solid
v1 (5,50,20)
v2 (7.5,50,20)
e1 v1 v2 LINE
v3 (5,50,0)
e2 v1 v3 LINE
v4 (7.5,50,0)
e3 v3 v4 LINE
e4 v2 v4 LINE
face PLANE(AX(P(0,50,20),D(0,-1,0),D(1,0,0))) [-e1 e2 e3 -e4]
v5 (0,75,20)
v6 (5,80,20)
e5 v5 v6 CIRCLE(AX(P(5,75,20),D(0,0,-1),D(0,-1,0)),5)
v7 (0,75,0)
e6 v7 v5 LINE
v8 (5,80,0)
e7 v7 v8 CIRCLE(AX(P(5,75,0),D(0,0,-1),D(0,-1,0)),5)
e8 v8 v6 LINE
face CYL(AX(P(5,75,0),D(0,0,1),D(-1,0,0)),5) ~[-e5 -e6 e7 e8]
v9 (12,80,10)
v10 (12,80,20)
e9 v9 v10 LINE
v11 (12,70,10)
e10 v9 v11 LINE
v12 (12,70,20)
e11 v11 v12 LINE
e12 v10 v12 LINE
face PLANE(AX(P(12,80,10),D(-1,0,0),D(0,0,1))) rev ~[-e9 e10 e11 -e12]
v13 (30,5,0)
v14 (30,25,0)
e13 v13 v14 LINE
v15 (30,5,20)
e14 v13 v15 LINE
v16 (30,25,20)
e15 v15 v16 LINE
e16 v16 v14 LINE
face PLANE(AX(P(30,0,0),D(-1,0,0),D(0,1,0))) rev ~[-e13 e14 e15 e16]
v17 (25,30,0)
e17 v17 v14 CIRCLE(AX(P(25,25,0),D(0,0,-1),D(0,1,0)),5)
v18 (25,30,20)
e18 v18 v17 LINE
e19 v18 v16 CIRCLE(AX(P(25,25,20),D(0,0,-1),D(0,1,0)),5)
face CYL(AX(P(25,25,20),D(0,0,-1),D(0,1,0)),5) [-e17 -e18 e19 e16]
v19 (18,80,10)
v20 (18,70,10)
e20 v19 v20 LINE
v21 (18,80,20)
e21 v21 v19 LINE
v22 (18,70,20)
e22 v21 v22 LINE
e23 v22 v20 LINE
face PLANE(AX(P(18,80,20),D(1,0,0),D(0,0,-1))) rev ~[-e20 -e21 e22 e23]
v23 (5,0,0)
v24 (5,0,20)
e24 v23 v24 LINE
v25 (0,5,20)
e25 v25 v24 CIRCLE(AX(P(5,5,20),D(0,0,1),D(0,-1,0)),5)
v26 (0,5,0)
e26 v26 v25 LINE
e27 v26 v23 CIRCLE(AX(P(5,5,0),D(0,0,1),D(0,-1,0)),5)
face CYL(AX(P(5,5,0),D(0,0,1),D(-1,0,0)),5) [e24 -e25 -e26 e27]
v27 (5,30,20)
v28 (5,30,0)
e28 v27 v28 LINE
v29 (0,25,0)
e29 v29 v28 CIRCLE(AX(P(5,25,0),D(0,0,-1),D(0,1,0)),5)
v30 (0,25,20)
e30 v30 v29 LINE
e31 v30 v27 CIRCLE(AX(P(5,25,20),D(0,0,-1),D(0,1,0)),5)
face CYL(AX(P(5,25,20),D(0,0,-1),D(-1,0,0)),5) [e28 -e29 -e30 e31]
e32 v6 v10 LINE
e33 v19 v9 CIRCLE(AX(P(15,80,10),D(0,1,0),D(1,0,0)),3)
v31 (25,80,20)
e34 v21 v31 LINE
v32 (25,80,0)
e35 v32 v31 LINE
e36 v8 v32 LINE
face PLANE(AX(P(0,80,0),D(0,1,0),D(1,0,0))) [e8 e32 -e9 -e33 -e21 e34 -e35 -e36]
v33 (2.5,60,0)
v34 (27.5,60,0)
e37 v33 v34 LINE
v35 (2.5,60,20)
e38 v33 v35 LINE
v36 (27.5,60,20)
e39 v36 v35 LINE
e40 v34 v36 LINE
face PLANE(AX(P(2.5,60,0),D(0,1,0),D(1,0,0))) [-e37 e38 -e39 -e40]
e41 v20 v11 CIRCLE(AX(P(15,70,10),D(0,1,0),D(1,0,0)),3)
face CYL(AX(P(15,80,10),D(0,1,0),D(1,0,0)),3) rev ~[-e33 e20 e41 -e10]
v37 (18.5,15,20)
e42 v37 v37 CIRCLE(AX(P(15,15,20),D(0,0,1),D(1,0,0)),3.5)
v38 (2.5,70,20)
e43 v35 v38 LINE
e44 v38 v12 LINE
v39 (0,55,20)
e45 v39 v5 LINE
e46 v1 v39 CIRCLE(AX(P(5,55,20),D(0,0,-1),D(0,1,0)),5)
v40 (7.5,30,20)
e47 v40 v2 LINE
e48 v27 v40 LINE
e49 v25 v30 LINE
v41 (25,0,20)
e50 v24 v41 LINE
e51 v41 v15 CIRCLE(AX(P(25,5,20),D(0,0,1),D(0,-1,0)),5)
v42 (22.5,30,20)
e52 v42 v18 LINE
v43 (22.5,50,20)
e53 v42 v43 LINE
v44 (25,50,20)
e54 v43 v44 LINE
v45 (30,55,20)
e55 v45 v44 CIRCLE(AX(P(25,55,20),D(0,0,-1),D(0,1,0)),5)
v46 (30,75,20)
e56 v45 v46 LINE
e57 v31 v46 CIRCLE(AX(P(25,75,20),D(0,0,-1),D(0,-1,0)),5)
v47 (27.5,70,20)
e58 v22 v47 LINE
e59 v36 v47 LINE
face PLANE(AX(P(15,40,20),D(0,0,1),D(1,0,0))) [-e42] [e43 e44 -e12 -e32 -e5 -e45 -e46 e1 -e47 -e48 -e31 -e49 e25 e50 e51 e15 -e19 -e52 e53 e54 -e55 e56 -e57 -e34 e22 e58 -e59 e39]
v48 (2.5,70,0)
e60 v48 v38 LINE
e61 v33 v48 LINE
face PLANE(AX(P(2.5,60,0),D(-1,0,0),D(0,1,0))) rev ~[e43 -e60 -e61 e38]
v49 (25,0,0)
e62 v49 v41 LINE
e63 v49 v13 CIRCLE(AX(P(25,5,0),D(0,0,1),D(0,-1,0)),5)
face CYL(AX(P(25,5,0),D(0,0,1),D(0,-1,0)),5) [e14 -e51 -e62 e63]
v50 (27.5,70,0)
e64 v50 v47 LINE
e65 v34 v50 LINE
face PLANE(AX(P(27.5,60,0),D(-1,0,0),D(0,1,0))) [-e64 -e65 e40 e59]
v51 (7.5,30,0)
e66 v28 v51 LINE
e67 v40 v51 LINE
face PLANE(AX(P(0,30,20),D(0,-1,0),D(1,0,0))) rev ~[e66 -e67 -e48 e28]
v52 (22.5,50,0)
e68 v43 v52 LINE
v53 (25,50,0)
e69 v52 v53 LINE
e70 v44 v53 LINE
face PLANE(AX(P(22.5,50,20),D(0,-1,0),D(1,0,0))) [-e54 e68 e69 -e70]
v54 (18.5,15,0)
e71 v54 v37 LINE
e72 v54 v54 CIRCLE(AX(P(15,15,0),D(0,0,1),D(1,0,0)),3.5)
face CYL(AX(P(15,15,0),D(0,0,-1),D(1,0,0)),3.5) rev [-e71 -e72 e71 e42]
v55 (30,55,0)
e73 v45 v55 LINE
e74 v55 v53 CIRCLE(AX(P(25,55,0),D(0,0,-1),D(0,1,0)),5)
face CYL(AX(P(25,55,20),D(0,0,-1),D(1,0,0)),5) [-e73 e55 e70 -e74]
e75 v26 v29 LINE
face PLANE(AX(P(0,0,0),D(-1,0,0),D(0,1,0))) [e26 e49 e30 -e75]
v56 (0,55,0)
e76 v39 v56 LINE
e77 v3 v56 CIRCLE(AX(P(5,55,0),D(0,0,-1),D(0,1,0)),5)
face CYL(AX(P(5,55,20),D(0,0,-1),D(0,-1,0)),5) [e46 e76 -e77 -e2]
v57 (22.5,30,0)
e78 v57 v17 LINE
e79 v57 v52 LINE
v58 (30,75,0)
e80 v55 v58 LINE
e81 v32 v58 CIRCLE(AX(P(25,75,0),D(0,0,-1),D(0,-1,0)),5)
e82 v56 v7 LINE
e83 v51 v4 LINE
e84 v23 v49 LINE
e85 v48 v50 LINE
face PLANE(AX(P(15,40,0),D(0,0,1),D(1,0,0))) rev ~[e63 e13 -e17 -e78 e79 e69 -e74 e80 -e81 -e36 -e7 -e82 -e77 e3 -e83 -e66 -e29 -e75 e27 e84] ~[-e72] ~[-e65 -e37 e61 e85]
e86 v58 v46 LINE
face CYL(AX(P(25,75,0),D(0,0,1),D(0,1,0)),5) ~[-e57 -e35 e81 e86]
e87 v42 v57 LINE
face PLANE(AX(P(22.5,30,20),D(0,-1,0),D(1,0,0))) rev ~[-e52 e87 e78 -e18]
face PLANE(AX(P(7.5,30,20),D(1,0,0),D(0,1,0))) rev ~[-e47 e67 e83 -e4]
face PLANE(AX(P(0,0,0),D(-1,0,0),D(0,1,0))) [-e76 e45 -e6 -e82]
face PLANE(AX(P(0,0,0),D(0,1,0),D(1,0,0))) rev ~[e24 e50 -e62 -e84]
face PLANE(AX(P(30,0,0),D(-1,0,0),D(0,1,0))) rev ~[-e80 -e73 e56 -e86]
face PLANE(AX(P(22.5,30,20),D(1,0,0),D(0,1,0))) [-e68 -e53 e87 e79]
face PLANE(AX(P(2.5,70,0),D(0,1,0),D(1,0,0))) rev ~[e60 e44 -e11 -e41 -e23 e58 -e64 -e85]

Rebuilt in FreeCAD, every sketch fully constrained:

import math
import FreeCAD as App
import Part
import Sketcher


def edges_at(feature, points):
    """Names of the edges that pass closest to the given points."""
    edges = feature.Shape.Edges
    near = lambda p: min(range(len(edges)), key=lambda i: edges[i].distToShape(Part.Vertex(*p))[0])
    return sorted({f"Edge{near(p) + 1}" for p in points})


def add_polygon(sketch, points):
    """Adds a closed chain of lines whose ends are joined by coincident constraints."""
    first, n = sketch.GeometryCount, len(points)
    for a, b in zip(points, points[1:] + points[:1]):
        sketch.addGeometry(Part.LineSegment(App.Vector(*a, 0), App.Vector(*b, 0)), False)
    for i in range(n):
        sketch.addConstraint(Sketcher.Constraint("Coincident", first + i, 2, first + (i + 1) % n, 1))

doc = App.newDocument("Part")
params = doc.addObject("Spreadsheet::Sheet", "Params")
for row, (alias, value) in enumerate([
    ("sketch1_width", "30 mm"),
    ("sketch1_height", "80 mm"),
    ("pad1_length", "20 mm"),
    ("sketch2_diameter", "7 mm"),
    ("pocket1_length", "20 mm"),
    ("sketch3_width", "25 mm"),
    ("sketch3_height", "10 mm"),
    ("pocket2_length", "20 mm"),
    ("sketch4_radius", "3 mm"),
    ("sketch4_height", "10 mm"),
    ("pocket3_length", "20 mm"),
    ("sketch5_height", "20 mm"),
    ("sketch5_width", "7.5 mm"),
    ("pocket4_length", "20 mm"),
    ("fillet_radius", "5 mm"),
    ("fillet2_radius", "5 mm"),
], start=1):
    params.set(f"A{row}", alias)
    params.set(f"B{row}", "=" + value)
    params.setAlias(f"B{row}", alias)

body = doc.addObject("PartDesign::Body", "Body")

# Sketch on XY plane
sketch1 = body.newObject("Sketcher::SketchObject", "Sketch")
sketch1.AttachmentSupport = (doc.getObject("XY_Plane"), [""])
sketch1.MapMode = "FlatFace"
add_polygon(sketch1, [(0, 80), (0, 0), (30, 0), (30, 80)])  # lines 0-3
sketch1.addConstraint(Sketcher.Constraint("Vertical", 0))
sketch1.addConstraint(Sketcher.Constraint("Horizontal", 1))
sketch1.addConstraint(Sketcher.Constraint("Vertical", 2))
sketch1.addConstraint(Sketcher.Constraint("Horizontal", 3))
sketch1.addConstraint(Sketcher.Constraint("Coincident", 0, 2, -1, 1))
sketch1.addConstraint(Sketcher.Constraint("DistanceX", 1, 1, 1, 2, 30.0))
sketch1.addConstraint(Sketcher.Constraint("DistanceY", 0, 2, 0, 1, 80.0))
sketch1.setExpression("Constraints[9]", "Params.sketch1_width")
sketch1.setExpression("Constraints[10]", "Params.sketch1_height")
pad1 = body.newObject("PartDesign::Pad", "Pad")
pad1.Profile = sketch1
pad1.setExpression("Length", "Params.pad1_length")

# Sketch on XY plane
sketch2 = body.newObject("Sketcher::SketchObject", "Sketch001")
sketch2.AttachmentSupport = (doc.getObject("XY_Plane"), [""])
sketch2.MapMode = "FlatFace"
sketch2.addGeometry(Part.Circle(App.Vector(15, 15, 0), App.Vector(0, 0, 1), 3.5), False)
sketch2.addConstraint(Sketcher.Constraint("Diameter", 0, 7.0))
sketch2.addConstraint(Sketcher.Constraint("DistanceX", -1, 1, 0, 3, 15.0))
sketch2.addConstraint(Sketcher.Constraint("DistanceY", -1, 1, 0, 3, 15.0))
sketch2.setExpression("Constraints[0]", "Params.sketch2_diameter")
pocket1 = body.newObject("PartDesign::Pocket", "Pocket")
pocket1.Profile = sketch2
pocket1.setExpression("Length", "Params.pocket1_length")
pocket1.Reversed = True

# Sketch on XY plane
sketch3 = body.newObject("Sketcher::SketchObject", "Sketch002")
sketch3.AttachmentSupport = (doc.getObject("XY_Plane"), [""])
sketch3.MapMode = "FlatFace"
add_polygon(sketch3, [(2, 70), (2, 60), (28, 60), (28, 70)])  # lines 0-3
sketch3.addConstraint(Sketcher.Constraint("Vertical", 0))
sketch3.addConstraint(Sketcher.Constraint("Horizontal", 1))
sketch3.addConstraint(Sketcher.Constraint("Vertical", 2))
sketch3.addConstraint(Sketcher.Constraint("Horizontal", 3))
sketch3.addConstraint(Sketcher.Constraint("DistanceX", 1, 1, 1, 2, 25.0))
sketch3.addConstraint(Sketcher.Constraint("DistanceY", 0, 2, 0, 1, 10.0))
sketch3.addConstraint(Sketcher.Constraint("DistanceY", -1, 1, 0, 2, 60.0))
sketch3.addConstraint(Sketcher.Constraint("DistanceX", -1, 1, 0, 2, 2.5))
sketch3.setExpression("Constraints[8]", "Params.sketch3_width")
sketch3.setExpression("Constraints[9]", "Params.sketch3_height")
pocket2 = body.newObject("PartDesign::Pocket", "Pocket001")
pocket2.Profile = sketch3
pocket2.setExpression("Length", "Params.pocket2_length")
pocket2.Reversed = True

# Sketch on XZ plane
sketch4 = body.newObject("Sketcher::SketchObject", "Sketch003")
sketch4.AttachmentSupport = (doc.getObject("XZ_Plane"), [""])
sketch4.MapMode = "FlatFace"
sketch4.AttachmentOffset = App.Placement(App.Vector(0, 0, -80), App.Rotation())
sketch4.addGeometry(Part.LineSegment(App.Vector(12, 10, 0), App.Vector(12, 20, 0)), False)
sketch4.addGeometry(Part.LineSegment(App.Vector(12, 20, 0), App.Vector(18, 20, 0)), False)
sketch4.addGeometry(Part.LineSegment(App.Vector(18, 20, 0), App.Vector(18, 10, 0)), False)
sketch4.addGeometry(Part.ArcOfCircle(Part.Circle(App.Vector(15, 10, 0), App.Vector(0, 0, 1), 3), math.radians(180), math.radians(360)), False)
sketch4.addConstraint(Sketcher.Constraint("Coincident", 0, 2, 1, 1))
sketch4.addConstraint(Sketcher.Constraint("Coincident", 1, 2, 2, 1))
sketch4.addConstraint(Sketcher.Constraint("Tangent", 2, 2, 3, 2))
sketch4.addConstraint(Sketcher.Constraint("Tangent", 3, 1, 0, 1))
sketch4.addConstraint(Sketcher.Constraint("Vertical", 0))
sketch4.addConstraint(Sketcher.Constraint("Horizontal", 1))
sketch4.addConstraint(Sketcher.Constraint("Vertical", 2))
sketch4.addConstraint(Sketcher.Constraint("Radius", 3, 3.0))
sketch4.addConstraint(Sketcher.Constraint("DistanceY", 0, 1, 0, 2, 10.0))
sketch4.addConstraint(Sketcher.Constraint("DistanceX", -1, 1, 3, 3, 15.0))
sketch4.addConstraint(Sketcher.Constraint("DistanceY", -1, 1, 3, 3, 10.0))
sketch4.setExpression("Constraints[7]", "Params.sketch4_radius")
sketch4.setExpression("Constraints[8]", "Params.sketch4_height")
pocket3 = body.newObject("PartDesign::Pocket", "Pocket002")
pocket3.Profile = sketch4
pocket3.setExpression("Length", "Params.pocket3_length")
pocket3.Reversed = True

# Sketch on XY plane
sketch5 = body.newObject("Sketcher::SketchObject", "Sketch004")
sketch5.AttachmentSupport = (doc.getObject("XY_Plane"), [""])
sketch5.MapMode = "FlatFace"
sketch5.AttachmentOffset = App.Placement(App.Vector(0, 0, 20), App.Rotation())
add_polygon(sketch5, [(22, 50), (22, 30), (30, 30), (30, 50)])  # lines 0-3
add_polygon(sketch5, [(0, 50), (0, 30), (8, 30), (8, 50)])  # lines 4-7
sketch5.addConstraint(Sketcher.Constraint("Vertical", 0))
sketch5.addConstraint(Sketcher.Constraint("Horizontal", 1))
sketch5.addConstraint(Sketcher.Constraint("Vertical", 2))
sketch5.addConstraint(Sketcher.Constraint("Horizontal", 3))
sketch5.addConstraint(Sketcher.Constraint("Vertical", 4))
sketch5.addConstraint(Sketcher.Constraint("Horizontal", 5))
sketch5.addConstraint(Sketcher.Constraint("Vertical", 6))
sketch5.addConstraint(Sketcher.Constraint("Horizontal", 7))
sketch5.addConstraint(Sketcher.Constraint("PointOnObject", 4, 2, -2))
sketch5.addConstraint(Sketcher.Constraint("Horizontal", 1, 2, 4, 2))
sketch5.addConstraint(Sketcher.Constraint("Horizontal", 3, 2, 6, 2))
sketch5.addConstraint(Sketcher.Constraint("Equal", 3, 5))
sketch5.addConstraint(Sketcher.Constraint("DistanceY", 0, 2, 0, 1, 20.0))
sketch5.addConstraint(Sketcher.Constraint("DistanceX", 1, 1, 1, 2, 7.5))
sketch5.addConstraint(Sketcher.Constraint("DistanceY", -1, 1, 0, 2, 30.0))
sketch5.addConstraint(Sketcher.Constraint("DistanceX", -1, 1, 1, 2, 30.0))
sketch5.setExpression("Constraints[20]", "Params.sketch5_height")
sketch5.setExpression("Constraints[21]", "Params.sketch5_width")
pocket4 = body.newObject("PartDesign::Pocket", "Pocket003")
pocket4.Profile = sketch5
pocket4.setExpression("Length", "Params.pocket4_length")
doc.recompute()

fillet = body.newObject("PartDesign::Fillet", "Fillet")
fillet.Base = (pocket4, edges_at(pocket4, [
    (30, 30, 10),
    (0, 30, 10),
    (0, 0, 10),
    (30, 0, 10),
]))
fillet.setExpression("Radius", "Params.fillet_radius")
doc.recompute()

fillet2 = body.newObject("PartDesign::Fillet", "Fillet001")
fillet2.Base = (fillet, edges_at(fillet, [
    (0, 80, 10),
    (0, 50, 10),
    (30, 50, 10),
    (30, 80, 10),
]))
fillet2.setExpression("Radius", "Params.fillet2_radius")

doc.recompute()
